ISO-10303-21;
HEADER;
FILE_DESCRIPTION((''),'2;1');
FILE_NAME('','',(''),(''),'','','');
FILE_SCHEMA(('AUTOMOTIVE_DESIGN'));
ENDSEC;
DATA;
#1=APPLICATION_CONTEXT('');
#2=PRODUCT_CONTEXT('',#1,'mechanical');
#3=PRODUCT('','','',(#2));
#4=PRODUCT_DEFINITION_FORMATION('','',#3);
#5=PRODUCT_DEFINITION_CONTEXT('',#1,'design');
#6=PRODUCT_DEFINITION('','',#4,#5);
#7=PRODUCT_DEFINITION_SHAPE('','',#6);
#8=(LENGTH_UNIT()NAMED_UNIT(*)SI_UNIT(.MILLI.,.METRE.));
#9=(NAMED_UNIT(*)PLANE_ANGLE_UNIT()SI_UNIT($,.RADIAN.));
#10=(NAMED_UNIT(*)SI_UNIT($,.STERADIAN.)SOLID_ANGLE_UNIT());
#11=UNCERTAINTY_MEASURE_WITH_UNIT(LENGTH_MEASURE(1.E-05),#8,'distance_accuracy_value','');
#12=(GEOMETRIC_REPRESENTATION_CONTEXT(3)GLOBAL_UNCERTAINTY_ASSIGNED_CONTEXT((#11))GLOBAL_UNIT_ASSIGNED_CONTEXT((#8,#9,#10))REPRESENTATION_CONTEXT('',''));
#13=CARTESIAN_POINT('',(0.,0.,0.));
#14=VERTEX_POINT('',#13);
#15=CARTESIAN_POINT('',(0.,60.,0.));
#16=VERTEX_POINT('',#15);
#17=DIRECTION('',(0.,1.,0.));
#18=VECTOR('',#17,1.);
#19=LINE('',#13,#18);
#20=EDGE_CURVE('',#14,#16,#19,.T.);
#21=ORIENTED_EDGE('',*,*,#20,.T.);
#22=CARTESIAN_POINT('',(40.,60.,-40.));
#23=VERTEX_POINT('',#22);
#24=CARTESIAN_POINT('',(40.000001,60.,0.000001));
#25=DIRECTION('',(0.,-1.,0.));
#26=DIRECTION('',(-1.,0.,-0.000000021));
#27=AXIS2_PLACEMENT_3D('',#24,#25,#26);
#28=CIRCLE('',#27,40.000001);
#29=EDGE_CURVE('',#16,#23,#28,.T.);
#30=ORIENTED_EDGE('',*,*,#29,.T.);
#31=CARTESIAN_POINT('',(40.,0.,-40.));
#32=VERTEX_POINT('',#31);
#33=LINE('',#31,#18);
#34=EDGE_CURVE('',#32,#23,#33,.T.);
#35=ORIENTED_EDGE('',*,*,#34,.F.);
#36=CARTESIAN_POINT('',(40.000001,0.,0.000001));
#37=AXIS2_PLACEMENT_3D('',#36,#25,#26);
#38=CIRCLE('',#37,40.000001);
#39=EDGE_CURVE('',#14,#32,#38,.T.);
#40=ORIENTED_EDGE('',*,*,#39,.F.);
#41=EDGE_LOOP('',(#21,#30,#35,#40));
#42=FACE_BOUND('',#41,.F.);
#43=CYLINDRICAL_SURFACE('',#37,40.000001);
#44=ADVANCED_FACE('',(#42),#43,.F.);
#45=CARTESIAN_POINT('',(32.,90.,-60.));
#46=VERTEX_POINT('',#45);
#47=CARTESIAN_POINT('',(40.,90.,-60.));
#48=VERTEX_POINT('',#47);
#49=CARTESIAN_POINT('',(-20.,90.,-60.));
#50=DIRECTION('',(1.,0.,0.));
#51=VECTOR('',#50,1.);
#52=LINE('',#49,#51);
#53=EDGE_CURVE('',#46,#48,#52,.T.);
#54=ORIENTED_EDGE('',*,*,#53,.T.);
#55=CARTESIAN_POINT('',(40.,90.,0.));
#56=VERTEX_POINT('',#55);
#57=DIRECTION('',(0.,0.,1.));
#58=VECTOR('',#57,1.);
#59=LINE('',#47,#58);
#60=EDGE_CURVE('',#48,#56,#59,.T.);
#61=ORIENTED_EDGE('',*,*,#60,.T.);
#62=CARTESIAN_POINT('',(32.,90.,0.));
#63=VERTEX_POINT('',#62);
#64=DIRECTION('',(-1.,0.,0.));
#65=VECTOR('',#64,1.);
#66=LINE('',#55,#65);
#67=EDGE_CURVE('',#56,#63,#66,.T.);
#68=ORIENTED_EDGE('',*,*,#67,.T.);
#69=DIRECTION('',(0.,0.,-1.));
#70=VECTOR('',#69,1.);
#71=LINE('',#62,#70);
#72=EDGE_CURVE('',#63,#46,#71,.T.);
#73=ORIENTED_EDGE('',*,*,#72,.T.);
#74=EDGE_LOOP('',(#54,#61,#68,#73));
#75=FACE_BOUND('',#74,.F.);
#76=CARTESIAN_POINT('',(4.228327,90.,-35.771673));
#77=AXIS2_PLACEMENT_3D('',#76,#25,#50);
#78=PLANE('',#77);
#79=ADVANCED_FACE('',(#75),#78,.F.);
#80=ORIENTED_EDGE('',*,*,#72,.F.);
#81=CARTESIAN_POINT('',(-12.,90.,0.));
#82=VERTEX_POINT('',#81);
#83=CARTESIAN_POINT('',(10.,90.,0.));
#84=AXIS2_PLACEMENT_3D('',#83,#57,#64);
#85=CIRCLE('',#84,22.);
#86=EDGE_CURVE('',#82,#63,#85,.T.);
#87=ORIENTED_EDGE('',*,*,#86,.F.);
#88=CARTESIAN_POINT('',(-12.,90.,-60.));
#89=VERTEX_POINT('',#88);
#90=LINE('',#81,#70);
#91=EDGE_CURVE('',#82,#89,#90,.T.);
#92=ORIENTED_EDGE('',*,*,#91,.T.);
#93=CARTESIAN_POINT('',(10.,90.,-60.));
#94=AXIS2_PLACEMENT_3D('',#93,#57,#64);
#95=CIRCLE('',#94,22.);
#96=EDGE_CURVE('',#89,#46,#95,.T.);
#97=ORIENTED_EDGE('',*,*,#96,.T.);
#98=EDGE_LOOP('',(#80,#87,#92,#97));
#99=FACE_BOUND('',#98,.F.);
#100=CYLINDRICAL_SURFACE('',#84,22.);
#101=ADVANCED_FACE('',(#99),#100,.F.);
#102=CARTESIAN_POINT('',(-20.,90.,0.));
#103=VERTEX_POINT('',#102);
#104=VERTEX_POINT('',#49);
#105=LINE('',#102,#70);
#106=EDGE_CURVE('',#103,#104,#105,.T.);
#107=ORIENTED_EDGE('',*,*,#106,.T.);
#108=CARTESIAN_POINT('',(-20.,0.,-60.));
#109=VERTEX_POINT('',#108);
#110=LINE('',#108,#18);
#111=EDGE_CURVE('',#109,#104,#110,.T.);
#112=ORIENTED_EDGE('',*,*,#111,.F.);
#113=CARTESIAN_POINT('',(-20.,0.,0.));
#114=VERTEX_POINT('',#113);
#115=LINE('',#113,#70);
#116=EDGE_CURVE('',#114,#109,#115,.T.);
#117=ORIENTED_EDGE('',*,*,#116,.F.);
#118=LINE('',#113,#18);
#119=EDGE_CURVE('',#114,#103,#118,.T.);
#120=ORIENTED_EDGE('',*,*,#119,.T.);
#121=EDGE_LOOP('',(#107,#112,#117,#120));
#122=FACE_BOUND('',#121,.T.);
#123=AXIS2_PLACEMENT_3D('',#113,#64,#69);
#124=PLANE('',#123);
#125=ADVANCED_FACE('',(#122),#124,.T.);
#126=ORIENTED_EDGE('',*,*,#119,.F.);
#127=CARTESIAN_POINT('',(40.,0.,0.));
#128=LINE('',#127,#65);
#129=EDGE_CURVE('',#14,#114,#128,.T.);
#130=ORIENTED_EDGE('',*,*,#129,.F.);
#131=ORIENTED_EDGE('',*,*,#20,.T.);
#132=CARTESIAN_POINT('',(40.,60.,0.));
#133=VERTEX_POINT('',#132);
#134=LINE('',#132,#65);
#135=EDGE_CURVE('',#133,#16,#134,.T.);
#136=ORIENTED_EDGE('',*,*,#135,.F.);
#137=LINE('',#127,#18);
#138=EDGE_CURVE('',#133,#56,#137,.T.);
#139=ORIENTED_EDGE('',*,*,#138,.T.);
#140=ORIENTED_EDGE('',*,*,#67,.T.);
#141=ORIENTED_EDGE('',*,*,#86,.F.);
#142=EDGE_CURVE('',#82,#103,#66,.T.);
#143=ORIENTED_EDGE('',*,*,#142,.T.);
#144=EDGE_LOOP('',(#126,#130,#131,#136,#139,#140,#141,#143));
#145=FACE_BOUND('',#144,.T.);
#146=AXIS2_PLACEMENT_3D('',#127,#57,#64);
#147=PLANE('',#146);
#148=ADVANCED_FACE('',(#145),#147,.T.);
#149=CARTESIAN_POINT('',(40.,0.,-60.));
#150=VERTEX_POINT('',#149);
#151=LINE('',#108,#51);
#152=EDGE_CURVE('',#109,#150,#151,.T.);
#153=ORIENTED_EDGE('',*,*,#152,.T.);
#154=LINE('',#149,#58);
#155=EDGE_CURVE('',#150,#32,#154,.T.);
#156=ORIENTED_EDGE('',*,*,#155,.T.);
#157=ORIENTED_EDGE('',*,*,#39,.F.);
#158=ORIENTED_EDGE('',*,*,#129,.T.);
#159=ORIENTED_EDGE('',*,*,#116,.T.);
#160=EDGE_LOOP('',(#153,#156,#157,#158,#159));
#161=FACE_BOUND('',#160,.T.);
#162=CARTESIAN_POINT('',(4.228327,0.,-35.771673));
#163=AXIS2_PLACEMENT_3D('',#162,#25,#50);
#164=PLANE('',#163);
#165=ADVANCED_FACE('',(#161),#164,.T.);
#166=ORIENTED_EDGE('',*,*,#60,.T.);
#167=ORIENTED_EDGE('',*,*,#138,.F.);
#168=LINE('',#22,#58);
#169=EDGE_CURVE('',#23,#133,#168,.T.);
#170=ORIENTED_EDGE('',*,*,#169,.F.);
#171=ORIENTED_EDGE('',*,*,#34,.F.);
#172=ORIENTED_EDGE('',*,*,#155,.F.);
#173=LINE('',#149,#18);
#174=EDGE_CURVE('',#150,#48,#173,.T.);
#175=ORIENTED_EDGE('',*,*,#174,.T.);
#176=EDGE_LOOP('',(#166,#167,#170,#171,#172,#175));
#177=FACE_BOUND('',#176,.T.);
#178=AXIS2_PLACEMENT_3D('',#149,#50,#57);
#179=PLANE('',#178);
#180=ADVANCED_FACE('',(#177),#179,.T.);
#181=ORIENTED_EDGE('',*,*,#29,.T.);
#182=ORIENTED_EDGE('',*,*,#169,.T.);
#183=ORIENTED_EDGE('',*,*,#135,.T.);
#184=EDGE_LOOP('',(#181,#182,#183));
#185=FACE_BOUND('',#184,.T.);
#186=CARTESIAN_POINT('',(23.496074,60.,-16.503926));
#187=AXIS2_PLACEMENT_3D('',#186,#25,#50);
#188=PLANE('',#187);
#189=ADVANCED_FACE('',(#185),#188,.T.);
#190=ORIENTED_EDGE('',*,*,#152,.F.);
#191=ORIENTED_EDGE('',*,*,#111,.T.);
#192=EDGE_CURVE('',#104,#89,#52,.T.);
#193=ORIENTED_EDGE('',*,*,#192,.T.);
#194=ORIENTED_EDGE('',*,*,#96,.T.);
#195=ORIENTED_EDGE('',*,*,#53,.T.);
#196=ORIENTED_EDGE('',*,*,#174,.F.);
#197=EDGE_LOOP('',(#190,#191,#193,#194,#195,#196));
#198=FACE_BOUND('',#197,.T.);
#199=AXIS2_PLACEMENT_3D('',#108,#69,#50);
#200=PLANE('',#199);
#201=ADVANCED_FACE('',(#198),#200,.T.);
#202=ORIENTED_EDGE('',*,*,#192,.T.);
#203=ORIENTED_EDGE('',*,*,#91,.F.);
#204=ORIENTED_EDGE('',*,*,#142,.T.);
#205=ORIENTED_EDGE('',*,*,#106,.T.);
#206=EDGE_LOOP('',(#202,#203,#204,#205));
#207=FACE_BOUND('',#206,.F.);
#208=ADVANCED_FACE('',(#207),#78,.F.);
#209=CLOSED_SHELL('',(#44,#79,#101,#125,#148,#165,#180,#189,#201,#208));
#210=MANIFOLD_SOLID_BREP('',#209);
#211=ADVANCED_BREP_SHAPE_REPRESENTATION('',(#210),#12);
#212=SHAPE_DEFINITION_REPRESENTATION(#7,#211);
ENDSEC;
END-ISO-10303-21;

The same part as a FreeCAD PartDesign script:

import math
import FreeCAD as App
import Part
import Sketcher
from FreeCAD import Vector
Q = App.Units.Quantity

doc = App.newDocument("Part")
params = doc.addObject("Spreadsheet::Sheet", "Params")
for row, (alias, value) in enumerate([
    ("sketch1_width", "60 mm"),
    ("pad1_length", "90 mm"),
    ("sketch2_radius", "40.000001 mm"),
    ("pocket1_length", "60 mm"),
    ("sketch3_radius", "22 mm"),
], start=1):
    params.set(f"A{row}", alias)
    params.set(f"B{row}", "=" + value)
    params.setAlias(f"B{row}", alias)

body = doc.addObject("PartDesign::Body", "Body")

sketch1 = body.newObject("Sketcher::SketchObject", "Sketch")
sketch1.AttachmentSupport = (doc.getObject("XZ_Plane"), [""])
sketch1.MapMode = "FlatFace"
sketch1.addGeometry([
    Part.LineSegment(Vector(-20, 0, 0), Vector(-20, -60, 0)),
    Part.LineSegment(Vector(-20, -60, 0), Vector(40, -60, 0)),
    Part.LineSegment(Vector(40, -60, 0), Vector(40, 0, 0)),
    Part.LineSegment(Vector(40, 0, 0), Vector(-20, 0, 0)),
], False)
sketch1.addConstraint([
    Sketcher.Constraint("Coincident", 0, 2, 1, 1),
    Sketcher.Constraint("Coincident", 1, 2, 2, 1),
    Sketcher.Constraint("Coincident", 2, 2, 3, 1),
    Sketcher.Constraint("Coincident", 3, 2, 0, 1),
    Sketcher.Constraint("Vertical", 0),
    Sketcher.Constraint("Horizontal", 1),
    Sketcher.Constraint("Vertical", 2),
    Sketcher.Constraint("Horizontal", 3),
    Sketcher.Constraint("PointOnObject", 2, 2, -1),
    Sketcher.Constraint("Equal", 3, 0),
    Sketcher.Constraint("DistanceX", 1, 1, 1, 2, Q("60 mm")),
    Sketcher.Constraint("DistanceX", 0, 2, -1, 1, Q("20 mm")),
])
sketch1.setExpression("Constraints[10]", "Params.sketch1_width")
pad1 = body.newObject("PartDesign::Pad", "Pad")
pad1.Profile = sketch1
pad1.setExpression("Length", "Params.pad1_length")
pad1.Reversed = True

sketch2 = body.newObject("Sketcher::SketchObject", "Sketch001")
sketch2.AttachmentSupport = (doc.getObject("XZ_Plane"), [""])
sketch2.MapMode = "FlatFace"
sketch2.addGeometry([
    Part.LineSegment(Vector(40, 0, 0), Vector(0, 0, 0)),
    Part.ArcOfCircle(Part.Circle(Vector(40, 0, 0), Vector(0, 0, 1), 40), math.radians(-180), math.radians(-90)),
    Part.LineSegment(Vector(40, -40, 0), Vector(40, 0, 0)),
], False)
sketch2.addConstraint([
    Sketcher.Constraint("Coincident", 0, 2, 1, 1),
    Sketcher.Constraint("Coincident", 1, 2, 2, 1),
    Sketcher.Constraint("Coincident", 2, 2, 0, 1),
    Sketcher.Constraint("Horizontal", 0),
    Sketcher.Constraint("Vertical", 2),
    Sketcher.Constraint("Coincident", 0, 2, -1, 1),
    Sketcher.Constraint("Coincident", 2, 2, 1, 3),
    Sketcher.Constraint("Radius", 1, Q("40.000001 mm")),
])
sketch2.setExpression("Constraints[7]", "Params.sketch2_radius")
pocket1 = body.newObject("PartDesign::Pocket", "Pocket")
pocket1.Profile = sketch2
pocket1.setExpression("Length", "Params.pocket1_length")

sketch3 = body.newObject("Sketcher::SketchObject", "Sketch002")
sketch3.AttachmentSupport = (doc.getObject("XY_Plane"), [""])
sketch3.MapMode = "FlatFace"
sketch3.addGeometry([
    Part.LineSegment(Vector(32, 90, 0), Vector(-12, 90, 0)),
    Part.ArcOfCircle(Part.Circle(Vector(10, 90, 0), Vector(0, 0, 1), 22), math.radians(180), math.radians(360)),
], False)
sketch3.addConstraint([
    Sketcher.Constraint("Coincident", 0, 1, 1, 2),
    Sketcher.Constraint("Coincident", 1, 1, 0, 2),
    Sketcher.Constraint("Horizontal", 0),
    Sketcher.Constraint("Horizontal", 1, 3, 0, 1),
    Sketcher.Constraint("Radius", 1, Q("22 mm")),
    Sketcher.Constraint("DistanceX", -1, 1, 1, 3, Q("10 mm")),
    Sketcher.Constraint("DistanceY", -1, 1, 1, 3, Q("90 mm")),
])
sketch3.setExpression("Constraints[4]", "Params.sketch3_radius")
pocket2 = body.newObject("PartDesign::Pocket", "Pocket001")
pocket2.Profile = sketch3
pocket2.Type = "ThroughAll"

doc.recompute()
